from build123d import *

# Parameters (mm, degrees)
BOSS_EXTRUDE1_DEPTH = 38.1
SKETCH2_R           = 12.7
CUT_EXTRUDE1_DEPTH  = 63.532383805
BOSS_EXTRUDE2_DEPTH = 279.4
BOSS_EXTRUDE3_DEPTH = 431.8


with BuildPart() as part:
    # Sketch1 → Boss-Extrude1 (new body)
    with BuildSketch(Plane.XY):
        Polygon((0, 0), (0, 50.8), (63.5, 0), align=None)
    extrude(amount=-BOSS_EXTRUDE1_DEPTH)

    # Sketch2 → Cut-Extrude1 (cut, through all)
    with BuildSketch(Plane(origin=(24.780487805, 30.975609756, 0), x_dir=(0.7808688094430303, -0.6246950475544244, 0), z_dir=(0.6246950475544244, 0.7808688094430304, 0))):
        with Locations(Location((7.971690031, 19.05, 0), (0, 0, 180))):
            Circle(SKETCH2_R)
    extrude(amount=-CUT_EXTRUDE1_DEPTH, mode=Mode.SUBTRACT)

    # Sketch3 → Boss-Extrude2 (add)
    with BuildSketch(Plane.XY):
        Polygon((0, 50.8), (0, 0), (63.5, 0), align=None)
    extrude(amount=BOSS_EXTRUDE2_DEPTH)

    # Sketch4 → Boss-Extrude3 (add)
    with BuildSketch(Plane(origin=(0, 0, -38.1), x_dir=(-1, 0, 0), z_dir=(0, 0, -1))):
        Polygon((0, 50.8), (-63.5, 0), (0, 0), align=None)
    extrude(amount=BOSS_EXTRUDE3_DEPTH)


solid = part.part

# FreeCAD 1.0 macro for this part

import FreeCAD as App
import Part
import Sketcher

V = App.Vector
Q = App.Units.Quantity


def add_polygon(sketch, points):
    """Adds a closed chain of lines whose ends are joined by coincident constraints."""
    first, n = sketch.GeometryCount, len(points)
    for a, b in zip(points, points[1:] + points[:1]):
        sketch.addGeometry(Part.LineSegment(App.Vector(*a, 0), App.Vector(*b, 0)), False)
    for i in range(n):
        sketch.addConstraint(Sketcher.Constraint("Coincident", first + i, 2, first + (i + 1) % n, 1))

doc = App.newDocument("Part")
body = doc.addObject("PartDesign::Body", "Body")

sketch1 = doc.addObject("Sketcher::SketchObject", "Sketch")
body.addObject(sketch1)
sketch1.AttachmentSupport = (doc.XY_Plane, [""])
sketch1.MapMode = "FlatFace"
add_polygon(sketch1, [(0, 51), (0, 0), (64, 0)])
sketch1.addConstraint(Sketcher.Constraint("Vertical", 0))
sketch1.addConstraint(Sketcher.Constraint("Horizontal", 1))
sketch1.addConstraint(Sketcher.Constraint("Coincident", 0, 2, -1, 1))
sketch1.addConstraint(Sketcher.Constraint("DistanceY", 0, 2, 0, 1, Q("2 in")))
sketch1.addConstraint(Sketcher.Constraint("DistanceX", 1, 1, 1, 2, Q("2.5 in")))
pad1 = doc.addObject("PartDesign::Pad", "Pad")
body.addObject(pad1)
pad1.Profile = sketch1
pad1.Length = Q("1.5 in")
pad1.Reversed = True

sketch2 = doc.addObject("Sketcher::SketchObject", "Sketch001")
body.addObject(sketch2)
sketch2.Placement = App.Placement(V(24.780488, 30.97561, 0), App.Rotation(V(0.780868809, -0.624695048, 0), V(0, 0, -1), V(0.624695048, 0.780868809, 0), "ZXY"))
sketch2.addGeometry(Part.Circle(V(8, 19, 0), V(0, 0, 1), 13), False)
sketch2.addConstraint(Sketcher.Constraint("Diameter", 0, Q("1 in")))
sketch2.addConstraint(Sketcher.Constraint("DistanceY", -1, 1, 0, 3, Q("0.75 in")))
sketch2.addConstraint(Sketcher.Constraint("DistanceX", -1, 1, 0, 3, Q("7.97169 mm")))
pocket1 = doc.addObject("PartDesign::Pocket", "Pocket")
body.addObject(pocket1)
pocket1.Profile = sketch2
pocket1.Type = "ThroughAll"

sketch3 = doc.addObject("Sketcher::SketchObject", "Sketch002")
body.addObject(sketch3)
sketch3.AttachmentSupport = (doc.XY_Plane, [""])
sketch3.MapMode = "FlatFace"
add_polygon(sketch3, [(0, 51), (0, 0), (64, 0)])
sketch3.addConstraint(Sketcher.Constraint("Vertical", 0))
sketch3.addConstraint(Sketcher.Constraint("Horizontal", 1))
sketch3.addConstraint(Sketcher.Constraint("Coincident", 0, 2, -1, 1))
sketch3.addConstraint(Sketcher.Constraint("DistanceY", 0, 2, 0, 1, Q("2 in")))
sketch3.addConstraint(Sketcher.Constraint("DistanceX", 1, 1, 1, 2, Q("2.5 in")))
pad2 = doc.addObject("PartDesign::Pad", "Pad001")
body.addObject(pad2)
pad2.Profile = sketch3
pad2.Length = Q("11 in")

sketch4 = doc.addObject("Sketcher::SketchObject", "Sketch003")
body.addObject(sketch4)
sketch4.AttachmentSupport = (doc.XY_Plane, [""])
sketch4.MapMode = "FlatFace"
sketch4.AttachmentOffset = App.Placement(V(0, 0, -1.5 * 25.4), App.Rotation())
add_polygon(sketch4, [(0, 51), (64, 0), (0, 0)])
sketch4.addConstraint(Sketcher.Constraint("Horizontal", 1))
sketch4.addConstraint(Sketcher.Constraint("Vertical", 2))
sketch4.addConstraint(Sketcher.Constraint("Coincident", 1, 2, -1, 1))
sketch4.addConstraint(Sketcher.Constraint("DistanceY", 2, 1, 2, 2, Q("2 in")))
sketch4.addConstraint(Sketcher.Constraint("DistanceX", 1, 2, 1, 1, Q("2.5 in")))
pad3 = doc.addObject("PartDesign::Pad", "Pad002")
body.addObject(pad3)
pad3.Profile = sketch4
pad3.Length = Q("17 in")
pad3.Reversed = True

doc.recompute()
